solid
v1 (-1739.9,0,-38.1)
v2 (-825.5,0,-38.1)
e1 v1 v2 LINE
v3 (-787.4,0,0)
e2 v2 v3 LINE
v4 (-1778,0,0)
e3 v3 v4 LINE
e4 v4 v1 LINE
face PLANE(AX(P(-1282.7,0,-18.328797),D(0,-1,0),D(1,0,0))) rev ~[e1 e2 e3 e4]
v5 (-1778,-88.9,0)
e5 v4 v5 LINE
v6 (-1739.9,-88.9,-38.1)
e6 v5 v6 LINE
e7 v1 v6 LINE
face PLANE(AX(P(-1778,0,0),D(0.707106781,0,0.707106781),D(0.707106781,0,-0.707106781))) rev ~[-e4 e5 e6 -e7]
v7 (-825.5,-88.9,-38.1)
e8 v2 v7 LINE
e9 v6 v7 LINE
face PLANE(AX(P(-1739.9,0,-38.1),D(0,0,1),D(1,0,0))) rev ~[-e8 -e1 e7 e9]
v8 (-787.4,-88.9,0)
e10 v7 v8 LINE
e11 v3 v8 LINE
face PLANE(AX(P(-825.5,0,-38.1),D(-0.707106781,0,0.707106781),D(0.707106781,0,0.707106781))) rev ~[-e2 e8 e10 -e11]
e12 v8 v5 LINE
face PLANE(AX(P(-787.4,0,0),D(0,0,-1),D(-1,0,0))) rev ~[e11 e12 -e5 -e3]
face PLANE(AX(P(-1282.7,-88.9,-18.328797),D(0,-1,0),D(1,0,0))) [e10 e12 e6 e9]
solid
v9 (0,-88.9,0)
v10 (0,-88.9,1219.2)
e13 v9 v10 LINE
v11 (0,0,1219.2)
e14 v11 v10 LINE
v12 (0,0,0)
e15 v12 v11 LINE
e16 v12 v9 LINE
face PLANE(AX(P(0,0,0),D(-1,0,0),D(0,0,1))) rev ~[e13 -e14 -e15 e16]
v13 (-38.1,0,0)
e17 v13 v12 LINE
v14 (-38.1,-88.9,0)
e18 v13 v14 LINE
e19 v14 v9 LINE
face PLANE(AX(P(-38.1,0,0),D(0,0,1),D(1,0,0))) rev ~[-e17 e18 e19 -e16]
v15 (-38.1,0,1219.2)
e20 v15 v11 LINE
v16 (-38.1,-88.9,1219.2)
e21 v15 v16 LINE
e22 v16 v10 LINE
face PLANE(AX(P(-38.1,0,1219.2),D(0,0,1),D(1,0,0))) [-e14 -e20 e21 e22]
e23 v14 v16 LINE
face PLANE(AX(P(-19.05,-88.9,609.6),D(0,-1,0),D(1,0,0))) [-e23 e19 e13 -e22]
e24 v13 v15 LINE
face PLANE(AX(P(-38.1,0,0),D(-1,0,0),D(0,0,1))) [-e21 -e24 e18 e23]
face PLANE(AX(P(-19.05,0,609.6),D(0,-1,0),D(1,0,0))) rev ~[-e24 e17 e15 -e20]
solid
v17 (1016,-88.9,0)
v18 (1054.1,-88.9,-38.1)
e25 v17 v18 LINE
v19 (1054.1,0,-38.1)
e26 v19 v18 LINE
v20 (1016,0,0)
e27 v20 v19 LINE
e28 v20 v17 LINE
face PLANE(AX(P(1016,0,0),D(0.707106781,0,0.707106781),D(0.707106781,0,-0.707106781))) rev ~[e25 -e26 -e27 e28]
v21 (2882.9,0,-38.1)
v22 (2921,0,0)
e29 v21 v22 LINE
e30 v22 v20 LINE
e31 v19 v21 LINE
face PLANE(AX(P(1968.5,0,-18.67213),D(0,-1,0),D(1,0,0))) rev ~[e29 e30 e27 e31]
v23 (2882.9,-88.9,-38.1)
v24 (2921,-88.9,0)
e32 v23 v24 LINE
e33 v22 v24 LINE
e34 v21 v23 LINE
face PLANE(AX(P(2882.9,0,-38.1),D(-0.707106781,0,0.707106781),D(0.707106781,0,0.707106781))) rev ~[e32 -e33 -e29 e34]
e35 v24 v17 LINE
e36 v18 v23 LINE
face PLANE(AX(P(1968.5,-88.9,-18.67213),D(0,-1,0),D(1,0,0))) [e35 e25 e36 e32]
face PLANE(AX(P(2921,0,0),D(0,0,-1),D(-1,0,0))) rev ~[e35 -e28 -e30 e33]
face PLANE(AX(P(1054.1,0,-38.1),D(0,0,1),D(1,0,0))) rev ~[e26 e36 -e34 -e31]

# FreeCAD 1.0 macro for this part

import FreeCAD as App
import Part
import Sketcher
from FreeCAD import Vector
Q = App.Units.Quantity


def add_polygon(sketch, points):
    """Adds a closed chain of lines whose ends are joined by coincident constraints."""
    first, n = sketch.GeometryCount, len(points)
    for a, b in zip(points, points[1:] + points[:1]):
        sketch.addGeometry(Part.LineSegment(App.Vector(*a, 0), App.Vector(*b, 0)), False)
    for i in range(n):
        sketch.addConstraint(Sketcher.Constraint("Coincident", first + i, 2, first + (i + 1) % n, 1))

doc = App.newDocument("Part")
body = doc.addObject("PartDesign::Body", "Body")

sketch1 = body.newObject("Sketcher::SketchObject", "Sketch")
sketch1.AttachmentSupport = (doc.getObject("XZ_Plane"), [""])
sketch1.MapMode = "FlatFace"
add_polygon(sketch1, [(-787, 0), (-1778, 0), (-1740, -38), (-826, -38)])
sketch1.addConstraint(Sketcher.Constraint("Horizontal", 0))
sketch1.addConstraint(Sketcher.Constraint("Horizontal", 2))
sketch1.addConstraint(Sketcher.Constraint("PointOnObject", 0, 2, -1))
sketch1.addConstraint(Sketcher.Constraint("Perpendicular", 1, 3))
sketch1.addConstraint(Sketcher.Constraint("Equal", 1, 3))
sketch1.addConstraint(Sketcher.Constraint("DistanceX", 0, 2, 0, 1, Q("39 in")))
sketch1.addConstraint(Sketcher.Constraint("DistanceX", 2, 1, 2, 2, Q("36 in")))
sketch1.addConstraint(Sketcher.Constraint("DistanceX", 0, 2, -1, 1, Q("70 in")))
pad1 = body.newObject("PartDesign::Pad", "Pad")
pad1.Profile = sketch1
pad1.Length = Q("3.5 in")
body2 = doc.addObject("PartDesign::Body", "Body001")

sketch2 = body2.newObject("Sketcher::SketchObject", "Sketch001")
sketch2.AttachmentSupport = (doc.getObject("XZ_Plane001"), [""])
sketch2.MapMode = "FlatFace"
add_polygon(sketch2, [(-38, 1219), (-38, 0), (0, 0), (0, 1219)])
sketch2.addConstraint(Sketcher.Constraint("Vertical", 0))
sketch2.addConstraint(Sketcher.Constraint("Horizontal", 1))
sketch2.addConstraint(Sketcher.Constraint("Vertical", 2))
sketch2.addConstraint(Sketcher.Constraint("Horizontal", 3))
sketch2.addConstraint(Sketcher.Constraint("Coincident", 1, 2, -1, 1))
sketch2.addConstraint(Sketcher.Constraint("DistanceY", 0, 2, 0, 1, Q("48 in")))
sketch2.addConstraint(Sketcher.Constraint("DistanceX", 1, 1, 1, 2, Q("1.5 in")))
pad2 = body2.newObject("PartDesign::Pad", "Pad001")
pad2.Profile = sketch2
pad2.Length = Q("3.5 in")
body3 = doc.addObject("PartDesign::Body", "Body002")

sketch3 = body3.newObject("Sketcher::SketchObject", "Sketch002")
sketch3.AttachmentSupport = (doc.getObject("XZ_Plane002"), [""])
sketch3.MapMode = "FlatFace"
add_polygon(sketch3, [(2921, 0), (1016, 0), (1054, -38), (2883, -38)])
sketch3.addConstraint(Sketcher.Constraint("Horizontal", 0))
sketch3.addConstraint(Sketcher.Constraint("Horizontal", 2))
sketch3.addConstraint(Sketcher.Constraint("PointOnObject", 0, 2, -1))
sketch3.addConstraint(Sketcher.Constraint("Perpendicular", 1, 3))
sketch3.addConstraint(Sketcher.Constraint("Equal", 1, 3))
sketch3.addConstraint(Sketcher.Constraint("DistanceX", 0, 2, 0, 1, Q("75 in")))
sketch3.addConstraint(Sketcher.Constraint("DistanceX", 2, 1, 2, 2, Q("72 in")))
sketch3.addConstraint(Sketcher.Constraint("DistanceX", -1, 1, 0, 2, Q("40 in")))
pad3 = body3.newObject("PartDesign::Pad", "Pad002")
pad3.Profile = sketch3
pad3.Length = Q("3.5 in")

doc.recompute()
